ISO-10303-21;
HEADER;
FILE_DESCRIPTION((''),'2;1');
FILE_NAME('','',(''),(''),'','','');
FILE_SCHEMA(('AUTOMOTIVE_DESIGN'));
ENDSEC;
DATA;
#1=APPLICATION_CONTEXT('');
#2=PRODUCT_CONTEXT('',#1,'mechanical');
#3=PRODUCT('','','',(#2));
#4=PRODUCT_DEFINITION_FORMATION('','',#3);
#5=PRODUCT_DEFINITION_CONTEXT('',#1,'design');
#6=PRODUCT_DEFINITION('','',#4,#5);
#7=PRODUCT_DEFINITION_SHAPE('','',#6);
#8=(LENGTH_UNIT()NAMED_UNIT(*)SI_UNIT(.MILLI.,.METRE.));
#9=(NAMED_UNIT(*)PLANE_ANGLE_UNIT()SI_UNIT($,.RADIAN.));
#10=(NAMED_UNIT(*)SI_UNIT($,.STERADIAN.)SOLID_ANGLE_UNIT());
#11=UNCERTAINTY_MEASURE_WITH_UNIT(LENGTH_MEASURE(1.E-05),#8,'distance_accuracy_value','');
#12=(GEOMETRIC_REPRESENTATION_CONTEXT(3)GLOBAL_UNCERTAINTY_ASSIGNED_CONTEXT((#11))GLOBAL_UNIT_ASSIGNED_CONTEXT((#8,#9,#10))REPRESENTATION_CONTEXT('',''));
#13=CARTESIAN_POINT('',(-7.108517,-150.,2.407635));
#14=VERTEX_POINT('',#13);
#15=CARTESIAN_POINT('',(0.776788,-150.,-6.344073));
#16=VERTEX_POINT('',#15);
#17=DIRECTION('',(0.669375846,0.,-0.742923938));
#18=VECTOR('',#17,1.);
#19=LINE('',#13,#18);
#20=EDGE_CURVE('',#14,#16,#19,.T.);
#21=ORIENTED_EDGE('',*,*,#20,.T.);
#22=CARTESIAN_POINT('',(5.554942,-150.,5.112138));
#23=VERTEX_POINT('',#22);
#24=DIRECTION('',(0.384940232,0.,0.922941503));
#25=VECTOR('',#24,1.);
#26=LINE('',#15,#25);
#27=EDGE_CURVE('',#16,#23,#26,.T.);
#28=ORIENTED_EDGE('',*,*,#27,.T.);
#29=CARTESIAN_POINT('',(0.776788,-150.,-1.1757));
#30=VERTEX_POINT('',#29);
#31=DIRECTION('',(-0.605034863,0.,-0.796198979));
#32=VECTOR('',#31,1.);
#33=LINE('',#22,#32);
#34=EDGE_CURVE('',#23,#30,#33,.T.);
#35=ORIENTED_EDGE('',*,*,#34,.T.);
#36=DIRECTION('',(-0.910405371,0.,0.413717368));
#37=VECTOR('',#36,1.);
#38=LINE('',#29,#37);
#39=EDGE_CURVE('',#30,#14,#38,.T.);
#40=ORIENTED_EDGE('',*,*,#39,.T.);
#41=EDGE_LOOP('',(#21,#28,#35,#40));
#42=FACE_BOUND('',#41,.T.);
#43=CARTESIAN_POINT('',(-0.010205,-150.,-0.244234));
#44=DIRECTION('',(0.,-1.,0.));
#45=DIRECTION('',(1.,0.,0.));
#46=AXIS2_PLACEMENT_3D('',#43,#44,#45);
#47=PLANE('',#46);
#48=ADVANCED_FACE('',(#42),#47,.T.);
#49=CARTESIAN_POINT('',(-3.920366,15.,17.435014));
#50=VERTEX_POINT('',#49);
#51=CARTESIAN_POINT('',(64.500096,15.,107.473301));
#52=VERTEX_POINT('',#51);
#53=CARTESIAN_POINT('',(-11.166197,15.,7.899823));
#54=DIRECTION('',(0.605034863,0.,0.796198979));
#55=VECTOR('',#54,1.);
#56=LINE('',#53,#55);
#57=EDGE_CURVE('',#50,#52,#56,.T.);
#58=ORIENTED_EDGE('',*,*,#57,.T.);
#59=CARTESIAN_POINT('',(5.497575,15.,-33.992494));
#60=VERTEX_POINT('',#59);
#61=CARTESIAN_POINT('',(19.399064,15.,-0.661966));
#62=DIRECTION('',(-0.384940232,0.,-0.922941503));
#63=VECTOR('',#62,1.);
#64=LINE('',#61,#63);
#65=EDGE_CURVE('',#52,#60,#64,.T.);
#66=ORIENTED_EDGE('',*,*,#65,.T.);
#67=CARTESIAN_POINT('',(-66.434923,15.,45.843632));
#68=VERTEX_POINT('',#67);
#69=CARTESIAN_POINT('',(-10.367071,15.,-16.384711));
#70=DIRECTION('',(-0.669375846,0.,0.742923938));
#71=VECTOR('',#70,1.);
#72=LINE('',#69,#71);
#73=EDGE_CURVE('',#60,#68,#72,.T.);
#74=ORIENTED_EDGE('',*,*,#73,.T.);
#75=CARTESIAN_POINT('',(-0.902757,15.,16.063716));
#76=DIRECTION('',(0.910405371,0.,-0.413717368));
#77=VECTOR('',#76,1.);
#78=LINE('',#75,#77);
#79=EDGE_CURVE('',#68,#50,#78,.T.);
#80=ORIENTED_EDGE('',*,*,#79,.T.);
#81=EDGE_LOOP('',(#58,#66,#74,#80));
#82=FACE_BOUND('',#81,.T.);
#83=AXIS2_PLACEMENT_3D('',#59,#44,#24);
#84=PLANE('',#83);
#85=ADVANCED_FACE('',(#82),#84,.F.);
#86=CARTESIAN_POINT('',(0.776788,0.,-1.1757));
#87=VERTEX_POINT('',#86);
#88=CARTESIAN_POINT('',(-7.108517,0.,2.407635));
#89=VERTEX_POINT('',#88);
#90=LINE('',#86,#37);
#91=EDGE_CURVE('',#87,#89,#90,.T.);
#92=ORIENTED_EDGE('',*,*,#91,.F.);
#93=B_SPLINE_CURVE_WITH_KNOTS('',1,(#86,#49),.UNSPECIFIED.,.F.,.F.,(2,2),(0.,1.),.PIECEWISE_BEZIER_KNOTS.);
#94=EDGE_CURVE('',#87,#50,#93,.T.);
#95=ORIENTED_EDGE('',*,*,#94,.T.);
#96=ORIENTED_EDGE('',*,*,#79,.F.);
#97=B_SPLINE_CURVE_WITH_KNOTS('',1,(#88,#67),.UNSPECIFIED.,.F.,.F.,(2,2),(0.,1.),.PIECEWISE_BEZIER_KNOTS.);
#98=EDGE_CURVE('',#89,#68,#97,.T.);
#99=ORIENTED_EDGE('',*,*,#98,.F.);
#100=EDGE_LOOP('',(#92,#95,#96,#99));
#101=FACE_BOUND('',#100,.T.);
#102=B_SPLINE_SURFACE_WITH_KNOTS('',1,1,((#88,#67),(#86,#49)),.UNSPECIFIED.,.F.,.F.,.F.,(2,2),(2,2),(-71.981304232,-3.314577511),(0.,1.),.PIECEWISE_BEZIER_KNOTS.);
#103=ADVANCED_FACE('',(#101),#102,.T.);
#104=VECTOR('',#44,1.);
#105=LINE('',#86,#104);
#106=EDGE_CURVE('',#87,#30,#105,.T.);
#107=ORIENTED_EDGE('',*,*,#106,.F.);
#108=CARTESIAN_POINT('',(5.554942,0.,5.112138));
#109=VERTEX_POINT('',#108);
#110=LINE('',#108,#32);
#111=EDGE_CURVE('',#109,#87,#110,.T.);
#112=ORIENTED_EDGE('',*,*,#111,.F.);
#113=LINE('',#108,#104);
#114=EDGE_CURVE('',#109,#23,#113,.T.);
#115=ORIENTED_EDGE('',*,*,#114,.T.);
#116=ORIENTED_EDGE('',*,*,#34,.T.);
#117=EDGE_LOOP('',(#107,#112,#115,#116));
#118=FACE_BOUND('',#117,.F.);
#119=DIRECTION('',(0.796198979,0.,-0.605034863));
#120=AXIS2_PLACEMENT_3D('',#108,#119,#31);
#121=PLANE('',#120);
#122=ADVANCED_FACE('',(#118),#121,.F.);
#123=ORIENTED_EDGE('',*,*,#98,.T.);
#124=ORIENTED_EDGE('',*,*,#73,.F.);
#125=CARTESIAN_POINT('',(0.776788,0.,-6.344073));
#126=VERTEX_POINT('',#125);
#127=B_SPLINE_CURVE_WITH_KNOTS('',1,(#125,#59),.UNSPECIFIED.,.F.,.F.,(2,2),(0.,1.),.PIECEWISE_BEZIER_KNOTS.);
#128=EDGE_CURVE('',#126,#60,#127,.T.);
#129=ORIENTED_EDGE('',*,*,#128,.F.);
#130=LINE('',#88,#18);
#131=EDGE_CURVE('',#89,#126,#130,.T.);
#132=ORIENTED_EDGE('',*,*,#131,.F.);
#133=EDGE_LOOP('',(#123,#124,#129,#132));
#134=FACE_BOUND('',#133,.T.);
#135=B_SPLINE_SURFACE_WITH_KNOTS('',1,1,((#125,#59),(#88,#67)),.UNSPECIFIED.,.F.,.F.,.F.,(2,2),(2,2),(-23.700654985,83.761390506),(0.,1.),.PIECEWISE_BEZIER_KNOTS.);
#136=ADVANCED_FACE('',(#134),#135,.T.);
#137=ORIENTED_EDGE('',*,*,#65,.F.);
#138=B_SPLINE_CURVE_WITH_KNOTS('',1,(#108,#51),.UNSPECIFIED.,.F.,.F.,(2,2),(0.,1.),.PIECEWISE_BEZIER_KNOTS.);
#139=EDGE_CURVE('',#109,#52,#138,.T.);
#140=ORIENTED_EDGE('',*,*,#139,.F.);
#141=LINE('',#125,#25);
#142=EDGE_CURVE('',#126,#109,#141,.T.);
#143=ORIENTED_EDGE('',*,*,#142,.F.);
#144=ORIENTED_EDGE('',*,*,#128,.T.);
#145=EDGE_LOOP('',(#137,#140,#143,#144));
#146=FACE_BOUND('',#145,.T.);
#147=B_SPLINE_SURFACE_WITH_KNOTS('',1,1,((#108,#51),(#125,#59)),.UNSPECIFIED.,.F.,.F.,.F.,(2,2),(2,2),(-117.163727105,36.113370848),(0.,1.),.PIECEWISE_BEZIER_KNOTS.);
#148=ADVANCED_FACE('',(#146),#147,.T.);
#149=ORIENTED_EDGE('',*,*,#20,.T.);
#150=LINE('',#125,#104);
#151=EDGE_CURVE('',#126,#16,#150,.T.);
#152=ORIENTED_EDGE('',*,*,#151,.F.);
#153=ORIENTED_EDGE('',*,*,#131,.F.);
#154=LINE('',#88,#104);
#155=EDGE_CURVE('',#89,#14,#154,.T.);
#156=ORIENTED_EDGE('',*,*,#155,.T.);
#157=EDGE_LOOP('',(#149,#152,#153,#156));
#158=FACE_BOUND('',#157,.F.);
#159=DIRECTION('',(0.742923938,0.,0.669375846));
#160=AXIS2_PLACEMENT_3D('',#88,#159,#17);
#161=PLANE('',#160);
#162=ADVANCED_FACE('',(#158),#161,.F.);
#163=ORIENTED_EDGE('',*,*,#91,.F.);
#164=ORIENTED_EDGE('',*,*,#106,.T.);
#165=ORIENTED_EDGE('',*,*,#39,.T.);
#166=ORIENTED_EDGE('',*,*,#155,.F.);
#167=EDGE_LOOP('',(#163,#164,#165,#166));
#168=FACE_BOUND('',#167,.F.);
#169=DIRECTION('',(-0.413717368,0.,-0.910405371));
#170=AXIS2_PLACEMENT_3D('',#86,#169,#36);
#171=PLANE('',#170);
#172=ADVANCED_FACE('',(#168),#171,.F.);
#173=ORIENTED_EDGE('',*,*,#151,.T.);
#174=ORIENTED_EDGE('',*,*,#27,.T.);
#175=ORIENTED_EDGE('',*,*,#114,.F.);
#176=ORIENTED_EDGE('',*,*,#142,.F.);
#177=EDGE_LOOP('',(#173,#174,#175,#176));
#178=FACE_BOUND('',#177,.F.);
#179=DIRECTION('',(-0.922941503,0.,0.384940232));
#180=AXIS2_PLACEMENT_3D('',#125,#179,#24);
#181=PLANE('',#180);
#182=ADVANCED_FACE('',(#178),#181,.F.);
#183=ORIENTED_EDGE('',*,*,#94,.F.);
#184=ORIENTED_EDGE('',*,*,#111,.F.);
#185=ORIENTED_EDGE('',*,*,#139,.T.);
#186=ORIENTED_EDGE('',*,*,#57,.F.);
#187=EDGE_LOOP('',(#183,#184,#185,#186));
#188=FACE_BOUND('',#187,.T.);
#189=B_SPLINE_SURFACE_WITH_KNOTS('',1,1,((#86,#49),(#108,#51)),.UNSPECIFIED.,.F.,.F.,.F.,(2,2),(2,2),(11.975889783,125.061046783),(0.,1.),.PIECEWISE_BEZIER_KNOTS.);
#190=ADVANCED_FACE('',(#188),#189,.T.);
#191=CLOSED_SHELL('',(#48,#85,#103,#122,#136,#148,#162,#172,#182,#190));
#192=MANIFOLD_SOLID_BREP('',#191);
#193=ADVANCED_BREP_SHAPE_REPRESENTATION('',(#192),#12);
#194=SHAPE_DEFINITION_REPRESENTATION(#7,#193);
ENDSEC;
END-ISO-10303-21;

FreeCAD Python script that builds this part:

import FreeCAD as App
import Part
import Sketcher

doc = App.newDocument("Part")
body = doc.addObject("PartDesign::Body", "Body")

# Sketch on XZ plane
sketch1 = body.newObject("Sketcher::SketchObject", "Sketch")
sketch1.AttachmentSupport = (doc.getObject("XZ_Plane"), [""])
sketch1.MapMode = "FlatFace"
sketch1.addGeometry(Part.LineSegment(App.Vector(6, 5, 0), App.Vector(1, -1, 0)), False)
sketch1.addGeometry(Part.LineSegment(App.Vector(1, -1, 0), App.Vector(-7, 2, 0)), False)
sketch1.addGeometry(Part.LineSegment(App.Vector(-7, 2, 0), App.Vector(1, -6, 0)), False)
sketch1.addGeometry(Part.LineSegment(App.Vector(1, -6, 0), App.Vector(6, 5, 0)), False)
sketch1.addConstraint(Sketcher.Constraint("Coincident", 0, 2, 1, 1))
sketch1.addConstraint(Sketcher.Constraint("Coincident", 1, 2, 2, 1))
sketch1.addConstraint(Sketcher.Constraint("Coincident", 2, 2, 3, 1))
sketch1.addConstraint(Sketcher.Constraint("Coincident", 3, 2, 0, 1))
sketch1.addConstraint(Sketcher.Constraint("Vertical", 0, 2, 2, 2))
sketch1.addConstraint(Sketcher.Constraint("DistanceY", 0, 2, -1, 1, 1.1757))
sketch1.addConstraint(Sketcher.Constraint("Distance", 0, 7.89732))
sketch1.addConstraint(Sketcher.Constraint("DistanceX", -1, 1, 3, 2, 5.554942))
sketch1.addConstraint(Sketcher.Constraint("DistanceY", 2, 2, 1, 2, 8.751708))
sketch1.addConstraint(Sketcher.Constraint("DistanceY", 2, 2, 3, 2, 11.456211))
sketch1.addConstraint(Sketcher.Constraint("DistanceX", 1, 2, 3, 2, 12.663459))
sketch1.addConstraint(Sketcher.Constraint("Distance", 1, 8.661312))
pad1 = body.newObject("PartDesign::Pad", "Pad")
pad1.Profile = sketch1
pad1.Length = 150

# Sketch on XZ plane
sketch2 = body.newObject("Sketcher::SketchObject", "Sketch001")
sketch2.AttachmentSupport = (doc.getObject("XZ_Plane"), [""])
sketch2.MapMode = "FlatFace"
sketch2.addGeometry(Part.LineSegment(App.Vector(1, -6, 0), App.Vector(-7, 2, 0)), False)
sketch2.addGeometry(Part.LineSegment(App.Vector(-7, 2, 0), App.Vector(1, -1, 0)), False)
sketch2.addGeometry(Part.LineSegment(App.Vector(1, -1, 0), App.Vector(6, 5, 0)), False)
sketch2.addGeometry(Part.LineSegment(App.Vector(6, 5, 0), App.Vector(1, -6, 0)), False)
sketch2.addConstraint(Sketcher.Constraint("Coincident", 0, 2, 1, 1))
sketch2.addConstraint(Sketcher.Constraint("Coincident", 1, 2, 2, 1))
sketch2.addConstraint(Sketcher.Constraint("Coincident", 2, 2, 3, 1))
sketch2.addConstraint(Sketcher.Constraint("Coincident", 3, 2, 0, 1))
sketch2.addConstraint(Sketcher.Constraint("Vertical", 1, 2, 3, 2))
sketch2.addConstraint(Sketcher.Constraint("DistanceY", 1, 2, -1, 1, 1.1757))
sketch2.addConstraint(Sketcher.Constraint("Distance", 2, 7.89732))
sketch2.addConstraint(Sketcher.Constraint("DistanceX", -1, 1, 2, 2, 5.554942))
sketch2.addConstraint(Sketcher.Constraint("DistanceX", 0, 2, 2, 2, 12.663459))
sketch2.addConstraint(Sketcher.Constraint("DistanceY", 3, 2, 0, 2, 8.751708))
sketch2.addConstraint(Sketcher.Constraint("DistanceY", 3, 2, 2, 2, 11.456211))
sketch2.addConstraint(Sketcher.Constraint("Distance", 0, 11.780086))
pad2 = body.newObject("PartDesign::Pad", "Pad001")
pad2.Profile = sketch2
pad2.Length = 15
pad2.Reversed = True
pad2.TaperAngle = 45

doc.recompute()
